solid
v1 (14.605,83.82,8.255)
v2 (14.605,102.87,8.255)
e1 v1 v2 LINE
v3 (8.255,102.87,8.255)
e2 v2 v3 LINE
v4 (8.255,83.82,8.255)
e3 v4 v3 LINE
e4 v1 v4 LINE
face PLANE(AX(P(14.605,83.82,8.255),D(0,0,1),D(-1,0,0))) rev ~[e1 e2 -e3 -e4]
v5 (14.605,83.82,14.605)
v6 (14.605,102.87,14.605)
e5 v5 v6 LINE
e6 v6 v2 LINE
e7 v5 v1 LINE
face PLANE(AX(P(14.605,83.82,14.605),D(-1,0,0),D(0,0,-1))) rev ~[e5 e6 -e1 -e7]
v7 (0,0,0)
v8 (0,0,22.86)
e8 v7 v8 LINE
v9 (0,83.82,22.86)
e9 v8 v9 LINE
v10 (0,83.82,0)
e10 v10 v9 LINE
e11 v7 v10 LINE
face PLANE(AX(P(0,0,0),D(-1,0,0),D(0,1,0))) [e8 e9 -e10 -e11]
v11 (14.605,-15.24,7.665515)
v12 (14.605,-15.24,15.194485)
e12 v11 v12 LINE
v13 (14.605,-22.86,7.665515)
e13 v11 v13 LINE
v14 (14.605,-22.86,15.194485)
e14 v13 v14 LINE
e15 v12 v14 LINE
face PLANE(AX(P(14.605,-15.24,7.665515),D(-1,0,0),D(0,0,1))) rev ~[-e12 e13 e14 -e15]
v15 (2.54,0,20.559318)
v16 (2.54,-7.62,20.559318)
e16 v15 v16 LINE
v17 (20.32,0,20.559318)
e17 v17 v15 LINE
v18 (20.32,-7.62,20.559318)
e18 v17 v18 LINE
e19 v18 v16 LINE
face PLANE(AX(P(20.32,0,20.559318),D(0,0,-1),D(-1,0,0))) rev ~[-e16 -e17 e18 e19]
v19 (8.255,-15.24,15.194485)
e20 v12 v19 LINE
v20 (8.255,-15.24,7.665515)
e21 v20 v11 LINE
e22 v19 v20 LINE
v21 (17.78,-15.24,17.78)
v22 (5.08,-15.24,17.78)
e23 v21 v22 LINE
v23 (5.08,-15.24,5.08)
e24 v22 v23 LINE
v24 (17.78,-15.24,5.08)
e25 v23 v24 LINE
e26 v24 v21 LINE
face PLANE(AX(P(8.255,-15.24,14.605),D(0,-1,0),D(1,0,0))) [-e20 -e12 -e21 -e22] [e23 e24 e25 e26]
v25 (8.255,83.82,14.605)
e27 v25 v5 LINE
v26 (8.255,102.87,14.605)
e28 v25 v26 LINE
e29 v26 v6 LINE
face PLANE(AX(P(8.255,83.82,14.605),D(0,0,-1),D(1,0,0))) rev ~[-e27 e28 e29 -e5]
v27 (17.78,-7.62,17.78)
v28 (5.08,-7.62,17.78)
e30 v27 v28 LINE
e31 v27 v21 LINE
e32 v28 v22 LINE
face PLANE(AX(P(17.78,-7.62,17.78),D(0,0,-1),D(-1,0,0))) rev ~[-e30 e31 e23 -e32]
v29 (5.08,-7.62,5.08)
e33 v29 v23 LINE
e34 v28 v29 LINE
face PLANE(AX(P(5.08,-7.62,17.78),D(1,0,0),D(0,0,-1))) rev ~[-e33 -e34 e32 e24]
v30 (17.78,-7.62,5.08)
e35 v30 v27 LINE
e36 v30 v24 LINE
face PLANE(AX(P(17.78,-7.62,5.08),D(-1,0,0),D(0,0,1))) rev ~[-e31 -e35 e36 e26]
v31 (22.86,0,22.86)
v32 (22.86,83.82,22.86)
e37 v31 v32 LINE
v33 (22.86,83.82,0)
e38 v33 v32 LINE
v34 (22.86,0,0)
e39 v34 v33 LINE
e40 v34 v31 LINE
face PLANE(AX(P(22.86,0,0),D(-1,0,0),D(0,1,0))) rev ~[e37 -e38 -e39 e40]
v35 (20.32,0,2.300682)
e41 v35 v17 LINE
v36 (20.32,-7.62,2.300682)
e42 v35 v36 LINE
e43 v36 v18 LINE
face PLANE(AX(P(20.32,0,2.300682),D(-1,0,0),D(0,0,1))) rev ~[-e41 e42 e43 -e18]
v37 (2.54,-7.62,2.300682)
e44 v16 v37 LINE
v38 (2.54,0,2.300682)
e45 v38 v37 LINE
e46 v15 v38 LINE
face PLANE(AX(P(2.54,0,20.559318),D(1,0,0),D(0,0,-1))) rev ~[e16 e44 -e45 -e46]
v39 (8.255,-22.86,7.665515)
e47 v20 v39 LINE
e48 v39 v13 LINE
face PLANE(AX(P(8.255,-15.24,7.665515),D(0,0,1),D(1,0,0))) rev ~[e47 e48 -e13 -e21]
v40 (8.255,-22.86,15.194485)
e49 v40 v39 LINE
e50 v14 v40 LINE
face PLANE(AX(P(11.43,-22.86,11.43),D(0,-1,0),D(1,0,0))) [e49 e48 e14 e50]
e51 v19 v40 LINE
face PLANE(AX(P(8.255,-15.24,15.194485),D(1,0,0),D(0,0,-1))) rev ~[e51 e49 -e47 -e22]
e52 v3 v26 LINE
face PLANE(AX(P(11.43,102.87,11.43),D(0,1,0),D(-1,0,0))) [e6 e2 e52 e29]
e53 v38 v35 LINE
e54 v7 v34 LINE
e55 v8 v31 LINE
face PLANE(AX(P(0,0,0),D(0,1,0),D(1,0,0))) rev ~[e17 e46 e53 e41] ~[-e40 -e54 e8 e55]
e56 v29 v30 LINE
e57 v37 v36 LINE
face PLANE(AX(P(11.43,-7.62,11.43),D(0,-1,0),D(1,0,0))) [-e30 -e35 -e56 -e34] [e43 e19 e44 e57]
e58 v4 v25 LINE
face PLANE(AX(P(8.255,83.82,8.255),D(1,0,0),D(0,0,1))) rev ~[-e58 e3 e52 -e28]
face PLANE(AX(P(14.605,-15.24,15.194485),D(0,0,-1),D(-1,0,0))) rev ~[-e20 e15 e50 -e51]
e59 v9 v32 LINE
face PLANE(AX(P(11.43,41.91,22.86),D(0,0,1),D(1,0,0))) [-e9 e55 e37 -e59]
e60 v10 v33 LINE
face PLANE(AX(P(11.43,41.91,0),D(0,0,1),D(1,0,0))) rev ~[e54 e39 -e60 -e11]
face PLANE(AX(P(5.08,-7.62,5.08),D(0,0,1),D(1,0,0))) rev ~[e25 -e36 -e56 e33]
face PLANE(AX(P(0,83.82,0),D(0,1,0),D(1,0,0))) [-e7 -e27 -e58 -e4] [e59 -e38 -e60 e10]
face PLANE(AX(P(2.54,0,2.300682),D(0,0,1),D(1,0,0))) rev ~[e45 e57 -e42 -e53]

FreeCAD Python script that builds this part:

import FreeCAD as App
import Part
import Sketcher
Q = App.Units.Quantity


def add_polygon(sketch, points):
    """Adds a closed chain of lines whose ends are joined by coincident constraints."""
    first, n = sketch.GeometryCount, len(points)
    for a, b in zip(points, points[1:] + points[:1]):
        sketch.addGeometry(Part.LineSegment(App.Vector(*a, 0), App.Vector(*b, 0)), False)
    for i in range(n):
        sketch.addConstraint(Sketcher.Constraint("Coincident", first + i, 2, first + (i + 1) % n, 1))

doc = App.newDocument("Part")
params = doc.addObject("Spreadsheet::Sheet", "Params")
for row, (alias, value) in enumerate([
    ("sketch1_width", "0.9 in"),
    ("sketch1_height", "3.3 in"),
    ("pad1_length", "0.9 in"),
    ("sketch2_width", "0.25 in"),
    ("pad2_length", "0.75 in"),
    ("sketch3_width", "0.7 in"),
    ("pad3_length", "0.3 in"),
    ("sketch4_width", "0.5 in"),
    ("pad4_length", "0.3 in"),
    ("sketch5_width", "0.25 in"),
    ("pad5_length", "0.3 in"),
], start=1):
    params.set(f"A{row}", alias)
    params.set(f"B{row}", "=" + value)
    params.setAlias(f"B{row}", alias)

body = doc.addObject("PartDesign::Body", "Body")

sketch1 = body.newObject("Sketcher::SketchObject", "Sketch")
sketch1.AttachmentSupport = (doc.getObject("XY_Plane"), [""])
sketch1.MapMode = "FlatFace"
add_polygon(sketch1, [(0, 84), (0, 0), (23, 0), (23, 84)])
sketch1.addConstraint(Sketcher.Constraint("Vertical", 0))
sketch1.addConstraint(Sketcher.Constraint("Horizontal", 1))
sketch1.addConstraint(Sketcher.Constraint("Vertical", 2))
sketch1.addConstraint(Sketcher.Constraint("Horizontal", 3))
sketch1.addConstraint(Sketcher.Constraint("Coincident", 0, 2, -1, 1))
sketch1.addConstraint(Sketcher.Constraint("DistanceX", 1, 1, 1, 2, Q("0.9 in")))
sketch1.addConstraint(Sketcher.Constraint("DistanceY", 0, 2, 0, 1, Q("3.3 in")))
sketch1.setExpression("Constraints[9]", "Params.sketch1_width")
sketch1.setExpression("Constraints[10]", "Params.sketch1_height")
pad1 = body.newObject("PartDesign::Pad", "Pad")
pad1.Profile = sketch1
pad1.setExpression("Length", "Params.pad1_length")

sketch2 = body.newObject("Sketcher::SketchObject", "Sketch001")
sketch2.AttachmentSupport = (doc.getObject("XZ_Plane"), [""])
sketch2.MapMode = "FlatFace"
sketch2.AttachmentOffset = App.Placement(App.Vector(0, 0, -3.3 * 25.4), App.Rotation())
add_polygon(sketch2, [(8, 8), (8, 15), (15, 15), (15, 8)])
sketch2.addConstraint(Sketcher.Constraint("Vertical", 0))
sketch2.addConstraint(Sketcher.Constraint("Horizontal", 1))
sketch2.addConstraint(Sketcher.Constraint("Vertical", 2))
sketch2.addConstraint(Sketcher.Constraint("Horizontal", 3))
sketch2.addConstraint(Sketcher.Constraint("Equal", 3, 0))
sketch2.addConstraint(Sketcher.Constraint("DistanceX", 1, 1, 1, 2, Q("0.25 in")))
sketch2.addConstraint(Sketcher.Constraint("DistanceX", -1, 1, 0, 2, Q("0.325 in")))
sketch2.addConstraint(Sketcher.Constraint("DistanceY", -1, 1, 0, 2, Q("0.575 in")))
sketch2.setExpression("Constraints[9]", "Params.sketch2_width")
pad2 = body.newObject("PartDesign::Pad", "Pad001")
pad2.Profile = sketch2
pad2.setExpression("Length", "Params.pad2_length")
pad2.Reversed = True

sketch3 = body.newObject("Sketcher::SketchObject", "Sketch002")
sketch3.AttachmentSupport = (doc.getObject("XZ_Plane"), [""])
sketch3.MapMode = "FlatFace"
add_polygon(sketch3, [(20, 21), (3, 21), (3, 2), (20, 2)])
sketch3.addConstraint(Sketcher.Constraint("Horizontal", 0))
sketch3.addConstraint(Sketcher.Constraint("Vertical", 1))
sketch3.addConstraint(Sketcher.Constraint("Horizontal", 2))
sketch3.addConstraint(Sketcher.Constraint("Vertical", 3))
sketch3.addConstraint(Sketcher.Constraint("DistanceX", 0, 2, 0, 1, Q("0.7 in")))
sketch3.addConstraint(Sketcher.Constraint("DistanceX", -1, 1, 0, 2, Q("0.1 in")))
sketch3.addConstraint(Sketcher.Constraint("DistanceY", 1, 2, 1, 1, 18.258636))
sketch3.addConstraint(Sketcher.Constraint("DistanceY", -1, 1, 0, 2, 20.559318))
sketch3.setExpression("Constraints[8]", "Params.sketch3_width")
pad3 = body.newObject("PartDesign::Pad", "Pad002")
pad3.Profile = sketch3
pad3.setExpression("Length", "Params.pad3_length")

sketch4 = body.newObject("Sketcher::SketchObject", "Sketch003")
sketch4.AttachmentSupport = (doc.getObject("XZ_Plane"), [""])
sketch4.MapMode = "FlatFace"
sketch4.AttachmentOffset = App.Placement(App.Vector(0, 0, 0.3 * 25.4), App.Rotation())
add_polygon(sketch4, [(5, 18), (5, 5), (18, 5), (18, 18)])
sketch4.addConstraint(Sketcher.Constraint("Vertical", 0))
sketch4.addConstraint(Sketcher.Constraint("Horizontal", 1))
sketch4.addConstraint(Sketcher.Constraint("Vertical", 2))
sketch4.addConstraint(Sketcher.Constraint("Horizontal", 3))
sketch4.addConstraint(Sketcher.Constraint("Equal", 3, 0))
sketch4.addConstraint(Sketcher.Constraint("DistanceX", 1, 1, 1, 2, Q("0.5 in")))
sketch4.addConstraint(Sketcher.Constraint("DistanceX", -1, 1, 0, 2, Q("0.2 in")))
sketch4.addConstraint(Sketcher.Constraint("DistanceY", -1, 1, 0, 2, Q("0.2 in")))
sketch4.setExpression("Constraints[9]", "Params.sketch4_width")
pad4 = body.newObject("PartDesign::Pad", "Pad003")
pad4.Profile = sketch4
pad4.setExpression("Length", "Params.pad4_length")

sketch5 = body.newObject("Sketcher::SketchObject", "Sketch004")
sketch5.AttachmentSupport = (doc.getObject("XZ_Plane"), [""])
sketch5.MapMode = "FlatFace"
sketch5.AttachmentOffset = App.Placement(App.Vector(0, 0, 0.6 * 25.4), App.Rotation())
add_polygon(sketch5, [(15, 15), (8, 15), (8, 8), (15, 8)])
sketch5.addConstraint(Sketcher.Constraint("Horizontal", 0))
sketch5.addConstraint(Sketcher.Constraint("Vertical", 1))
sketch5.addConstraint(Sketcher.Constraint("Horizontal", 2))
sketch5.addConstraint(Sketcher.Constraint("Vertical", 3))
sketch5.addConstraint(Sketcher.Constraint("DistanceX", 0, 2, 0, 1, Q("0.25 in")))
sketch5.addConstraint(Sketcher.Constraint("DistanceX", -1, 1, 0, 2, Q("0.325 in")))
sketch5.addConstraint(Sketcher.Constraint("DistanceY", 1, 2, 1, 1, 7.52897))
sketch5.addConstraint(Sketcher.Constraint("DistanceY", -1, 1, 0, 2, 15.194485))
sketch5.setExpression("Constraints[8]", "Params.sketch5_width")
pad5 = body.newObject("PartDesign::Pad", "Pad004")
pad5.Profile = sketch5
pad5.setExpression("Length", "Params.pad5_length")

doc.recompute()
